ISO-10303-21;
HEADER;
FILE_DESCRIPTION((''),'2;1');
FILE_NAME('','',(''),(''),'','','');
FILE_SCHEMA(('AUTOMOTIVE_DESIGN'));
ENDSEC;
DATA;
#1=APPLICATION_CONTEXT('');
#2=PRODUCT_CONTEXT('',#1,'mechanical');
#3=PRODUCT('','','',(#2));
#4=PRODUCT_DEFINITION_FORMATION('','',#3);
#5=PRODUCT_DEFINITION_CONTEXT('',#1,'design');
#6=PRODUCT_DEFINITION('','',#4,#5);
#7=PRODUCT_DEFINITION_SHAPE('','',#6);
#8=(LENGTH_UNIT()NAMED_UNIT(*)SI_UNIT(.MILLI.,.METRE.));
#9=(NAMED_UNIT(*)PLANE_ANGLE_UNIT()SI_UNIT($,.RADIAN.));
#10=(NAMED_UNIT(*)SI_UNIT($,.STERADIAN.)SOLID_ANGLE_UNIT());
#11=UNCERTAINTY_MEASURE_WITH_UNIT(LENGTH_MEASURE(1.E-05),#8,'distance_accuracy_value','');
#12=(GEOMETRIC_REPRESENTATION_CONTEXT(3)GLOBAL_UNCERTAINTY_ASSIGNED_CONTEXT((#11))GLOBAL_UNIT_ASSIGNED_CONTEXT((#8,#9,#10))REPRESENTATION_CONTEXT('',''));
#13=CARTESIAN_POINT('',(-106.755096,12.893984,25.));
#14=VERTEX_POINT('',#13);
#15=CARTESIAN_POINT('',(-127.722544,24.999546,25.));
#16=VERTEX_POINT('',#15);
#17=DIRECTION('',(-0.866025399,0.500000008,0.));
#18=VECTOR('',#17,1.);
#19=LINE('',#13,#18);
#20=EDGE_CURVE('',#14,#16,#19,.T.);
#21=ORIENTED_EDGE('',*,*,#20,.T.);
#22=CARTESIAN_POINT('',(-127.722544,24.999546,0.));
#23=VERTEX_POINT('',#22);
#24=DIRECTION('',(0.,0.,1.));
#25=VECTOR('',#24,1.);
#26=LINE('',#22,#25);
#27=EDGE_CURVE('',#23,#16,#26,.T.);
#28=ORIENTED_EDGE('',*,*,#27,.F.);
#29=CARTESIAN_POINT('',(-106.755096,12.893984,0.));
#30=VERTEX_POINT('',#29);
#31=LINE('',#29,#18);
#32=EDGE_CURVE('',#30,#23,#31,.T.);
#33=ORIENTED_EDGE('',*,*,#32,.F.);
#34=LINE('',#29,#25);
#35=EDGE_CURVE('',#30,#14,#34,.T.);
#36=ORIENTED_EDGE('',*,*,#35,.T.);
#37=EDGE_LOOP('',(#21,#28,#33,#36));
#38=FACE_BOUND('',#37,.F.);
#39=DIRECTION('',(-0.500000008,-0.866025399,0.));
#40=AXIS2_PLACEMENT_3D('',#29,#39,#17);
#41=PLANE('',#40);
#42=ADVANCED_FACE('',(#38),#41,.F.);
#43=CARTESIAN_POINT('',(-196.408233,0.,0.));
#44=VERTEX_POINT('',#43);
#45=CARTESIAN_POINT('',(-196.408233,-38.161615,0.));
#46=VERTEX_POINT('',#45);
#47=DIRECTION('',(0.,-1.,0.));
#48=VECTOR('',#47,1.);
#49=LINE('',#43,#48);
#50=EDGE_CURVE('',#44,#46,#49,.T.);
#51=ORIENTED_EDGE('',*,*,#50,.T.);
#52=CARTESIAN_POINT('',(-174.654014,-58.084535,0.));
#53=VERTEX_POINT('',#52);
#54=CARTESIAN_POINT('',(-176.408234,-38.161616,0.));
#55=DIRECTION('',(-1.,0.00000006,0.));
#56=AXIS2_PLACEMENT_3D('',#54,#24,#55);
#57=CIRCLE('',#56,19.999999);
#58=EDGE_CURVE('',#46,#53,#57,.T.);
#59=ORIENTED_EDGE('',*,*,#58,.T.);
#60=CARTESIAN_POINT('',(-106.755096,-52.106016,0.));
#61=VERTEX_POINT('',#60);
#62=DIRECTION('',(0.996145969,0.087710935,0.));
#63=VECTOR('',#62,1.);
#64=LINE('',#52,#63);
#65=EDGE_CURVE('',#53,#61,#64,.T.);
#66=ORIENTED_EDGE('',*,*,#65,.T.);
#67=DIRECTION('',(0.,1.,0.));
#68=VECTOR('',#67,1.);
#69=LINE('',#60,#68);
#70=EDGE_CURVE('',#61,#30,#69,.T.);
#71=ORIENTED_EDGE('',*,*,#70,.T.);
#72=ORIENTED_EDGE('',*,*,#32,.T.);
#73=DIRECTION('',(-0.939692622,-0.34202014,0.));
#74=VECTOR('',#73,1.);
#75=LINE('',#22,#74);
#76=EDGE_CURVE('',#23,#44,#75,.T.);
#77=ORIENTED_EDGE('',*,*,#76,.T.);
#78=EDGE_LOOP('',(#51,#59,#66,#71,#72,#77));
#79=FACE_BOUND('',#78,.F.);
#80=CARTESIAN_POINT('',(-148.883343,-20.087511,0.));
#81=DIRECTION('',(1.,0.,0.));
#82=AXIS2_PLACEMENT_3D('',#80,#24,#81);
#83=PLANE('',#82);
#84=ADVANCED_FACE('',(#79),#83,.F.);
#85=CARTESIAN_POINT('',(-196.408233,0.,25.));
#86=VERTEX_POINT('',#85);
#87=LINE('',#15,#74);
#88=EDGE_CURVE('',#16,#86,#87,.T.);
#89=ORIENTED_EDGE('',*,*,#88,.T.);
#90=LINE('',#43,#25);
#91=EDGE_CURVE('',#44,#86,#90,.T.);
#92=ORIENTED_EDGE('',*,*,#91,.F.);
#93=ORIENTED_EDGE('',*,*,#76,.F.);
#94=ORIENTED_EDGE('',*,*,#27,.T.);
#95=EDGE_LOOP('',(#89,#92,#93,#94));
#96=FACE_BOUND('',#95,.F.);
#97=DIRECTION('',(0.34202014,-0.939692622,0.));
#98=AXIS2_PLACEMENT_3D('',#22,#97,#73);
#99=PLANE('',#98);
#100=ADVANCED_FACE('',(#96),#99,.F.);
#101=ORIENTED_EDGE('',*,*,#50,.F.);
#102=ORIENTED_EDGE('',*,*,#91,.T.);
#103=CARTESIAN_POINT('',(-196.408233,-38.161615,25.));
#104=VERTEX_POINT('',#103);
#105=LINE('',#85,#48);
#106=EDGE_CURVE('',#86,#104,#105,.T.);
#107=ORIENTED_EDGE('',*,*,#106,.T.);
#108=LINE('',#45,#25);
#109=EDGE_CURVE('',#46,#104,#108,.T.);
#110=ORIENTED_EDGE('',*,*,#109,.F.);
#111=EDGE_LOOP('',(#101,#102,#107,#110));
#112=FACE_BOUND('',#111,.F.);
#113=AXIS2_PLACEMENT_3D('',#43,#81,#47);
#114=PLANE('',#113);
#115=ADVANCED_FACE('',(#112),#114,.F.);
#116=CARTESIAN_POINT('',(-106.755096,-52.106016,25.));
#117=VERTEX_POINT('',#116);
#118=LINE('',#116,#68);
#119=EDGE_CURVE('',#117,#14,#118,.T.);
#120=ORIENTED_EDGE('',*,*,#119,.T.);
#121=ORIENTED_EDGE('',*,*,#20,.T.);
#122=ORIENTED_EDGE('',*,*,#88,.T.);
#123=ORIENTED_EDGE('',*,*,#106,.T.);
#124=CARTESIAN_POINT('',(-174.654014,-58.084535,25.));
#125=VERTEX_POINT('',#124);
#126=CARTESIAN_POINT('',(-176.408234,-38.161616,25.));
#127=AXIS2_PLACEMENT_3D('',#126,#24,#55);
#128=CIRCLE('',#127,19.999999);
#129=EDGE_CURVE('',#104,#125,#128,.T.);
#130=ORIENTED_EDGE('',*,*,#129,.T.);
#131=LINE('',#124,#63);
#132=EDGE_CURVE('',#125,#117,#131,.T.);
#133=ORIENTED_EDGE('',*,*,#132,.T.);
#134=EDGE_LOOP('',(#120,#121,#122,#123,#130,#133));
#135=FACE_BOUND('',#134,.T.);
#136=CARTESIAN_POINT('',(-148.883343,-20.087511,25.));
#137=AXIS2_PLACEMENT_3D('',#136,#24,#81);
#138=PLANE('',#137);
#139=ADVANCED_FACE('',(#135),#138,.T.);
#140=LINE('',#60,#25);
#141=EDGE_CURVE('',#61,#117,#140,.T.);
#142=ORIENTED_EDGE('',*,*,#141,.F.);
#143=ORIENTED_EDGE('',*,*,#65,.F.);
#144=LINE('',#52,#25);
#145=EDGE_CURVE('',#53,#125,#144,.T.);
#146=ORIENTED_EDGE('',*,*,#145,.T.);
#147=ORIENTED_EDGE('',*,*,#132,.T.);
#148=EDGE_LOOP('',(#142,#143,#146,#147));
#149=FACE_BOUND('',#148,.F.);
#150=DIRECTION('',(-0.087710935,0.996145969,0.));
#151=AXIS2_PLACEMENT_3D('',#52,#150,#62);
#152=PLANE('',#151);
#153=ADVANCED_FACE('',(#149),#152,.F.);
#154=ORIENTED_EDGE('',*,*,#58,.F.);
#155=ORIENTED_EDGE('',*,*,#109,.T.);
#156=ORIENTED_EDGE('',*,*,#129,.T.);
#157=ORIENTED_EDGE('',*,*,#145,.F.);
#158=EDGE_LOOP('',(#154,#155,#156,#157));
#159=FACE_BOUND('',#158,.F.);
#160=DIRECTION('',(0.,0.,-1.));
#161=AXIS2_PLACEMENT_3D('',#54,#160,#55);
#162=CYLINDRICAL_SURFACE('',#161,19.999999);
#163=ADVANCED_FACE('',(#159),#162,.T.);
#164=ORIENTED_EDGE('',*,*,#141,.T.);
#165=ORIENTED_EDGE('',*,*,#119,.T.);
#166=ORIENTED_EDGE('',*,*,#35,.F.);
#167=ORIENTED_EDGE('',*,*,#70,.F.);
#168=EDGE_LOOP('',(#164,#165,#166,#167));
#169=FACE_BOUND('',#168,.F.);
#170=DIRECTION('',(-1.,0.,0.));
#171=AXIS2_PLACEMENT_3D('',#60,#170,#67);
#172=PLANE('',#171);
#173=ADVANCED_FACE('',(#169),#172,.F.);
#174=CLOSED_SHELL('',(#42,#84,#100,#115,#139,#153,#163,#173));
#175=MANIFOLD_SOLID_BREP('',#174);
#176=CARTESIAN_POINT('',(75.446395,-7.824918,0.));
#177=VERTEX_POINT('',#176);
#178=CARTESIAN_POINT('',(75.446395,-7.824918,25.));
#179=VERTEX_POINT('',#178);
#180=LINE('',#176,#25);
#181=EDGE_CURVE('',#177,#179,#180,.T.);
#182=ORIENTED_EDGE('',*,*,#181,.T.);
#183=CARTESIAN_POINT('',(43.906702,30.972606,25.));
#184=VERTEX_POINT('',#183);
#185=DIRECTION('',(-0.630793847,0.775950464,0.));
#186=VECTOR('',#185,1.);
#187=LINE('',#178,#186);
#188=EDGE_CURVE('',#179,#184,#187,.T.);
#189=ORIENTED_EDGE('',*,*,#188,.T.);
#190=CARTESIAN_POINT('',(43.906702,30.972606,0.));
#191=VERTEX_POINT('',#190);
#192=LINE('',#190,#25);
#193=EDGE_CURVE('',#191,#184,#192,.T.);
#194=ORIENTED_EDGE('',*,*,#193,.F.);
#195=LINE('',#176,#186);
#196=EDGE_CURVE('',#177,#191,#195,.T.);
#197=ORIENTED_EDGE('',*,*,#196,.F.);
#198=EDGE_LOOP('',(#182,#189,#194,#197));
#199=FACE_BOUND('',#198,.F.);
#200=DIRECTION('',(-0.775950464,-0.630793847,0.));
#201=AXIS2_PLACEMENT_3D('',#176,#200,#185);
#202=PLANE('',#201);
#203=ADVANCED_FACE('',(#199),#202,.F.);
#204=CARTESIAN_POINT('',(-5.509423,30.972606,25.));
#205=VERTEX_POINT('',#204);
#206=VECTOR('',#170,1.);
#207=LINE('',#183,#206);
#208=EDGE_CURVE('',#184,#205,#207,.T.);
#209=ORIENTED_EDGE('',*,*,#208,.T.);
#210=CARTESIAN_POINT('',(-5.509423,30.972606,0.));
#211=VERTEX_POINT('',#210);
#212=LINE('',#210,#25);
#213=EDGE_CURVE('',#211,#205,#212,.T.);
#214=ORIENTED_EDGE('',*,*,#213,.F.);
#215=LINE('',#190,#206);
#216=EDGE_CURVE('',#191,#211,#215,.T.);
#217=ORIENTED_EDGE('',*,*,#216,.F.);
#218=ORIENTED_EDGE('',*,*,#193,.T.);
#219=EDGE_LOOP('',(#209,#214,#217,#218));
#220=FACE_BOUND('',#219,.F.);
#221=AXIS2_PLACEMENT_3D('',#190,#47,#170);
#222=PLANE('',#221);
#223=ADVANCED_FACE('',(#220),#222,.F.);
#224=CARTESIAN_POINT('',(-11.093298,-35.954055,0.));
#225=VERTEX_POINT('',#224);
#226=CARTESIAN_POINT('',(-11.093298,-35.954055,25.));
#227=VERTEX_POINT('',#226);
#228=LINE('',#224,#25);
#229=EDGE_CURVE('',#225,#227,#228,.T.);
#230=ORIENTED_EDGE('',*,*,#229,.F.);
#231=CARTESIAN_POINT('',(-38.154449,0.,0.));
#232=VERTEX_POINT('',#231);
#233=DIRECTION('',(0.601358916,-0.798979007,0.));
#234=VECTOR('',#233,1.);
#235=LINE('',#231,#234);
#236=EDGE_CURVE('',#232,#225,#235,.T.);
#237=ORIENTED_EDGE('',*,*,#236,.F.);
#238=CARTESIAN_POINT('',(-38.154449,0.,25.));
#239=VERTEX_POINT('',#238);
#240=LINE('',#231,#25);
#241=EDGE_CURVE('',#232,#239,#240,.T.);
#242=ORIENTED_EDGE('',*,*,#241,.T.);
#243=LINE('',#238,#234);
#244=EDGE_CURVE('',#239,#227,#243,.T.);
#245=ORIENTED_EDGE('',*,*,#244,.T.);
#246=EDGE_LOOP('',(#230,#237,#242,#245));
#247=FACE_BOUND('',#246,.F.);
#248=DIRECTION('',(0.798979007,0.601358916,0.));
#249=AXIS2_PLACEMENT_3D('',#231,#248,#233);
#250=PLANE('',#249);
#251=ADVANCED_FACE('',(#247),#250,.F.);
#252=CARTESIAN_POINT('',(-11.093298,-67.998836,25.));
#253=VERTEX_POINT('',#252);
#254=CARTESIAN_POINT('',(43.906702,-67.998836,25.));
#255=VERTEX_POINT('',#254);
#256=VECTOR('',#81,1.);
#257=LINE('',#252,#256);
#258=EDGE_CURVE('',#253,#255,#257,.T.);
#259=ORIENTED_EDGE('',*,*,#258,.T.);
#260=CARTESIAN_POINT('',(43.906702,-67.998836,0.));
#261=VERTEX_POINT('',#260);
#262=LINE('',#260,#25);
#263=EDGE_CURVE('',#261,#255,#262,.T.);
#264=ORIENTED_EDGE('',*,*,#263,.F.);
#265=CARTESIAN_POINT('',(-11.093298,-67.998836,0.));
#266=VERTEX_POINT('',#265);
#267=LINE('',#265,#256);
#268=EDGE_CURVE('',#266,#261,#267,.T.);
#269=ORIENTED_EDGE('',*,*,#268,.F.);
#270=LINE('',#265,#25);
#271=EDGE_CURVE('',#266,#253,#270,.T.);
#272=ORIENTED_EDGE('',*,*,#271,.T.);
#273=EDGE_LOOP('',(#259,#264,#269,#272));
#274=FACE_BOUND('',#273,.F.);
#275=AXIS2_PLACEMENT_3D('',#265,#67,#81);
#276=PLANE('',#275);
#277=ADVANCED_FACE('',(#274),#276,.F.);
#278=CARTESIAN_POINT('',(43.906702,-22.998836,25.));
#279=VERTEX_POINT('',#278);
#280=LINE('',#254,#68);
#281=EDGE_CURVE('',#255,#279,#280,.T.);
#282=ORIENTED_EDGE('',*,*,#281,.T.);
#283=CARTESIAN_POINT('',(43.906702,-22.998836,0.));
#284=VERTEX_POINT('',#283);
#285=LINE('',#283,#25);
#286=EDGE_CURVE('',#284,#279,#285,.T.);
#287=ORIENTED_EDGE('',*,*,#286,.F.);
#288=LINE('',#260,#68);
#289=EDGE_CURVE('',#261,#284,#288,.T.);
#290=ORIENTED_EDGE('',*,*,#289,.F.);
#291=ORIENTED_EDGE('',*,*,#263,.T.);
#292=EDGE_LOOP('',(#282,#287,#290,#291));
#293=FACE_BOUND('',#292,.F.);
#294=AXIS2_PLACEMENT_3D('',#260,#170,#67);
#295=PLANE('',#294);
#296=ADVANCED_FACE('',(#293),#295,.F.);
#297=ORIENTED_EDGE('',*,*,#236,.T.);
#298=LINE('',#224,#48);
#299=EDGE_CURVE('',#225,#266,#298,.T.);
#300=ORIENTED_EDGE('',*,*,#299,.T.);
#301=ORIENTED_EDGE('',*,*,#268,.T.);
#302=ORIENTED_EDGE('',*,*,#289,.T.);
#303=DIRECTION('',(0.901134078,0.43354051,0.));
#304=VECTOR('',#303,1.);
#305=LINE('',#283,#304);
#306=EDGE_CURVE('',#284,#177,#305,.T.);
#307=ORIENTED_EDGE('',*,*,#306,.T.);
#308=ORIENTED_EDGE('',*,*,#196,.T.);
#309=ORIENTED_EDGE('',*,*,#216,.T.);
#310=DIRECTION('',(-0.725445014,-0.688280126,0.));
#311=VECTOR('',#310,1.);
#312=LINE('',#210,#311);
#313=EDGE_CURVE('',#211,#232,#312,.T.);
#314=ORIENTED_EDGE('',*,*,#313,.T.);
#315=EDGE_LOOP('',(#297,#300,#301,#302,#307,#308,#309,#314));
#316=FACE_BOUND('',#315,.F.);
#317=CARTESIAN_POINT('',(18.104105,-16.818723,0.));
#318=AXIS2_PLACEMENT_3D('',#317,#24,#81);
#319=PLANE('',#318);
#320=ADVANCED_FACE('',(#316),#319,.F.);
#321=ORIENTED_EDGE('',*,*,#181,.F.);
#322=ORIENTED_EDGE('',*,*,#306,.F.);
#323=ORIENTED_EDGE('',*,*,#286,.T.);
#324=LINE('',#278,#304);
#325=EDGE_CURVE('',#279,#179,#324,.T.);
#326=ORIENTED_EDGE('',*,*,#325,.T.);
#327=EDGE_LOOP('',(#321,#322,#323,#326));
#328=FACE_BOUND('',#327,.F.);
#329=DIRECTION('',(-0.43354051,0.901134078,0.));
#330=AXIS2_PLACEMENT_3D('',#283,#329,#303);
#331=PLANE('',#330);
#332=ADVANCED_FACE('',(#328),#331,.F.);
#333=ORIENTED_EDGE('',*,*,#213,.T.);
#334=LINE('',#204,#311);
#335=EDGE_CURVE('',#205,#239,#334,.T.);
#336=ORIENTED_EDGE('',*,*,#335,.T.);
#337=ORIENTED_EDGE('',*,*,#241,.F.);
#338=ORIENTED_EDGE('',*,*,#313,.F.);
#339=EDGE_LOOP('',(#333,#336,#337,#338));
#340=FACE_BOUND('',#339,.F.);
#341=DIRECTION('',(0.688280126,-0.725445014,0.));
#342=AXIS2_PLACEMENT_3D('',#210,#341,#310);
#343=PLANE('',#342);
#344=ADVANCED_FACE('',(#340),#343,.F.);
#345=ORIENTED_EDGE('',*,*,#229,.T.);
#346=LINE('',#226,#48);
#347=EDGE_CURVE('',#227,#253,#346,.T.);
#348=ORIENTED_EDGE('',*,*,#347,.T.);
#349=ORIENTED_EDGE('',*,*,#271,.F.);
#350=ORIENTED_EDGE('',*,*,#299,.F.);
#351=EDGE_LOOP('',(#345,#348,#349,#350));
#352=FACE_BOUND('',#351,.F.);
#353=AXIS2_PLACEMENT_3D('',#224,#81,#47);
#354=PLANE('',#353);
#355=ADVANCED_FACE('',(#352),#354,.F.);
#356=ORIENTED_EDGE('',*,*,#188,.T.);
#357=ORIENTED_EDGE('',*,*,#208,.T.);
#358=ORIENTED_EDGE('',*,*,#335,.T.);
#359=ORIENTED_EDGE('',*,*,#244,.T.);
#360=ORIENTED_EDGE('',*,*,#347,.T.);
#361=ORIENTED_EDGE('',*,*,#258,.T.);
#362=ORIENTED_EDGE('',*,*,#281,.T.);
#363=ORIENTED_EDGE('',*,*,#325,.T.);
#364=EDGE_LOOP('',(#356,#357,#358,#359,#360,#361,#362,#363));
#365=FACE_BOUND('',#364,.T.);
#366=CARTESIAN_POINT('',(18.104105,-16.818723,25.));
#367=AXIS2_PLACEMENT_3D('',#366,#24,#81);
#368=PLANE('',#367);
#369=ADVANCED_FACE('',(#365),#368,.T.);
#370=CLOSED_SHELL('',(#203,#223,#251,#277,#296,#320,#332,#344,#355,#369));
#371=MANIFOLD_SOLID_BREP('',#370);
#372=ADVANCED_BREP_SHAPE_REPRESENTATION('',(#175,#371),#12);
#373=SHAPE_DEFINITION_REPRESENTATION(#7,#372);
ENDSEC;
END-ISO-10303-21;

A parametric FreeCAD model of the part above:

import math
import FreeCAD as App
import Part
import Sketcher
from FreeCAD import Vector
Q = App.Units.Quantity

doc = App.newDocument("Part")
body = doc.addObject("PartDesign::Body", "Body")

# Sketch on XY plane
sketch1 = body.newObject("Sketcher::SketchObject", "Sketch")
sketch1.AttachmentSupport = (doc.getObject("XY_Plane"), [""])
sketch1.MapMode = "FlatFace"
sketch1.addGeometry([
    Part.LineSegment(Vector(-127.722544, 24.999546, 0), Vector(-196.408233, 0, 0)),  # 0
    Part.LineSegment(Vector(-196.408233, 0, 0), Vector(-196.408233, -38.161615, 0)),  # 1
    Part.ArcOfCircle(Part.Circle(Vector(-176.408234, -38.161616, 0), Vector(0, 0, 1), 19.999999), math.radians(179.999997), math.radians(275.031935)),  # 2
    Part.LineSegment(Vector(-174.654014, -58.084535, 0), Vector(-106.755096, -52.106016, 0)),  # 3
    Part.LineSegment(Vector(-106.755096, -52.106016, 0), Vector(-106.755096, 12.893984, 0)),  # 4
    Part.LineSegment(Vector(-106.755096, 12.893984, 0), Vector(-127.722544, 24.999546, 0)),  # 5
], False)
sketch1.addConstraint([
    Sketcher.Constraint("Coincident", 0, 2, 1, 1),
    Sketcher.Constraint("Tangent", 1, 2, 2, 1),
    Sketcher.Constraint("Tangent", 2, 2, 3, 1),
    Sketcher.Constraint("Coincident", 3, 2, 4, 1),
    Sketcher.Constraint("Coincident", 4, 2, 5, 1),
    Sketcher.Constraint("Coincident", 5, 2, 0, 1),
    Sketcher.Constraint("Vertical", 1),
    Sketcher.Constraint("Vertical", 4),
    Sketcher.Constraint("PointOnObject", 0, 2, -1),
    Sketcher.Constraint("Radius", 2, 19.999999),
    Sketcher.Constraint("DistanceY", 4, 1, 4, 2, 65.0),
    Sketcher.Constraint("Angle", 0, Q("-160 deg")),
    Sketcher.Constraint("Angle", 5, Q("149.999999 deg")),
    Sketcher.Constraint("DistanceY", 3, 2, 2, 3, 13.9444),
    Sketcher.Constraint("DistanceY", 1, 2, 1, 1, 38.161615),
    Sketcher.Constraint("DistanceX", 5, 2, 4, 2, 20.967448),
    Sketcher.Constraint("DistanceX", 2, 3, -1, 1, 176.408234),
])
pad1 = body.newObject("PartDesign::Pad", "Pad")
pad1.Profile = sketch1
pad1.Length = 25
body2 = doc.addObject("PartDesign::Body", "Body001")

# Sketch on XY plane
sketch2 = body2.newObject("Sketcher::SketchObject", "Sketch001")
sketch2.AttachmentSupport = (doc.getObject("XY_Plane001"), [""])
sketch2.MapMode = "FlatFace"
sketch2.addGeometry([
    Part.LineSegment(Vector(-11.093298, -35.954055, 0), Vector(-11.093298, -67.998836, 0)),  # 0
    Part.LineSegment(Vector(-11.093298, -67.998836, 0), Vector(43.906702, -67.998836, 0)),  # 1
    Part.LineSegment(Vector(43.906702, -67.998836, 0), Vector(43.906702, -22.998836, 0)),  # 2
    Part.LineSegment(Vector(43.906702, -22.998836, 0), Vector(75.446395, -7.824918, 0)),  # 3
    Part.LineSegment(Vector(75.446395, -7.824918, 0), Vector(43.906702, 30.972606, 0)),  # 4
    Part.LineSegment(Vector(43.906702, 30.972606, 0), Vector(-5.509423, 30.972606, 0)),  # 5
    Part.LineSegment(Vector(-5.509423, 30.972606, 0), Vector(-38.154449, 0, 0)),  # 6
    Part.LineSegment(Vector(-38.154449, 0, 0), Vector(-11.093298, -35.954055, 0)),  # 7
], False)
sketch2.addConstraint([
    Sketcher.Constraint("Coincident", 0, 2, 1, 1),
    Sketcher.Constraint("Coincident", 1, 2, 2, 1),
    Sketcher.Constraint("Coincident", 2, 2, 3, 1),
    Sketcher.Constraint("Coincident", 3, 2, 4, 1),
    Sketcher.Constraint("Coincident", 4, 2, 5, 1),
    Sketcher.Constraint("Coincident", 5, 2, 6, 1),
    Sketcher.Constraint("Coincident", 6, 2, 7, 1),
    Sketcher.Constraint("Coincident", 7, 2, 0, 1),
    Sketcher.Constraint("Vertical", 0),
    Sketcher.Constraint("Horizontal", 1),
    Sketcher.Constraint("Vertical", 2),
    Sketcher.Constraint("Horizontal", 5),
    Sketcher.Constraint("PointOnObject", 6, 2, -1),
    Sketcher.Constraint("Vertical", 2, 2, 4, 2),
    Sketcher.Constraint("Equal", 6, 7),
    Sketcher.Constraint("DistanceX", 1, 1, 1, 2, 55.0),
    Sketcher.Constraint("DistanceY", 2, 1, 2, 2, 45.0),
    Sketcher.Constraint("Distance", 3, 35.0),
    Sketcher.Constraint("Distance", 4, 50.000001),
    Sketcher.Constraint("Distance", 6, 45.0),
    Sketcher.Constraint("DistanceY", 0, 2, 0, 1, 32.044781),
    Sketcher.Constraint("DistanceX", 0, 2, -1, 1, 11.093298),
    Sketcher.Constraint("DistanceX", 5, 2, 5, 1, 49.416125),
    Sketcher.Constraint("DistanceY", 3, 2, -1, 1, 7.824918),
])
pad2 = body2.newObject("PartDesign::Pad", "Pad001")
pad2.Profile = sketch2
pad2.Length = 25

doc.recompute()
